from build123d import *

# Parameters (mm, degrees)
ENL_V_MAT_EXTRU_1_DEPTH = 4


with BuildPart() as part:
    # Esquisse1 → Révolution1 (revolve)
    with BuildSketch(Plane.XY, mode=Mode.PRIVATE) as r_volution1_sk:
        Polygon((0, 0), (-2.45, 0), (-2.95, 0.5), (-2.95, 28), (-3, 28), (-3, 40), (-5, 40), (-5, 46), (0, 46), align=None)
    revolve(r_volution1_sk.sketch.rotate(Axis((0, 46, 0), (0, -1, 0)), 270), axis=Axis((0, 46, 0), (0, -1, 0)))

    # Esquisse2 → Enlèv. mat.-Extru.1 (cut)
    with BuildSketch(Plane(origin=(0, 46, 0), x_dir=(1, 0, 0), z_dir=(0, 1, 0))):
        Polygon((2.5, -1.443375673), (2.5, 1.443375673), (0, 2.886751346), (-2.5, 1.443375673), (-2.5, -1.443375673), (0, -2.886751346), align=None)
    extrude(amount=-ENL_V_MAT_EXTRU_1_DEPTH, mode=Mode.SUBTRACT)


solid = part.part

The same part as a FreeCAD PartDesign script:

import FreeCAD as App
import Part
import Sketcher

V = App.Vector
Q = App.Units.Quantity

doc = App.newDocument("Part")
params = doc.addObject("Spreadsheet::Sheet", "Params")
for row, (alias, value) in enumerate([
    ("sketch1_width", "5 mm"),
    ("sketch1_width2", "2 mm"),
    ("sketch1_height", "46 mm"),
    ("sketch1_height2", "6 mm"),
    ("sketch1_height3", "12 mm"),
    ("revolution_angle", "360 deg"),
    ("pocket1_length", "4 mm"),
], start=1):
    params.set(f"A{row}", alias)
    params.set(f"B{row}", "=" + value)
    params.setAlias(f"B{row}", alias)

body = doc.addObject("PartDesign::Body", "Body")

sketch1 = body.newObject("Sketcher::SketchObject", "Sketch")
sketch1.AttachmentSupport = (doc.getObject("XY_Plane"), [""])
sketch1.MapMode = "FlatFace"
sketch1.addGeometry(Part.LineSegment(V(-2.45, 0, 0), V(0, 0, 0)), False)
sketch1.addGeometry(Part.LineSegment(V(0, 0, 0), V(0, 46, 0)), False)
sketch1.addGeometry(Part.LineSegment(V(0, 46, 0), V(-5, 46, 0)), False)
sketch1.addGeometry(Part.LineSegment(V(-5, 46, 0), V(-5, 40, 0)), False)
sketch1.addGeometry(Part.LineSegment(V(-5, 40, 0), V(-3, 40, 0)), False)
sketch1.addGeometry(Part.LineSegment(V(-3, 40, 0), V(-3, 28, 0)), False)
sketch1.addGeometry(Part.LineSegment(V(-3, 28, 0), V(-2.95, 28, 0)), False)
sketch1.addGeometry(Part.LineSegment(V(-2.95, 28, 0), V(-2.95, 0.5, 0)), False)
sketch1.addGeometry(Part.LineSegment(V(-2.95, 0.5, 0), V(-2.45, 0, 0)), False)
sketch1.addConstraint(Sketcher.Constraint("Coincident", 0, 2, 1, 1))
sketch1.addConstraint(Sketcher.Constraint("Coincident", 1, 2, 2, 1))
sketch1.addConstraint(Sketcher.Constraint("Coincident", 2, 2, 3, 1))
sketch1.addConstraint(Sketcher.Constraint("Coincident", 3, 2, 4, 1))
sketch1.addConstraint(Sketcher.Constraint("Coincident", 4, 2, 5, 1))
sketch1.addConstraint(Sketcher.Constraint("Coincident", 5, 2, 6, 1))
sketch1.addConstraint(Sketcher.Constraint("Coincident", 6, 2, 7, 1))
sketch1.addConstraint(Sketcher.Constraint("Coincident", 7, 2, 8, 1))
sketch1.addConstraint(Sketcher.Constraint("Coincident", 8, 2, 0, 1))
sketch1.addConstraint(Sketcher.Constraint("Horizontal", 0))
sketch1.addConstraint(Sketcher.Constraint("Vertical", 1))
sketch1.addConstraint(Sketcher.Constraint("Horizontal", 2))
sketch1.addConstraint(Sketcher.Constraint("Vertical", 3))
sketch1.addConstraint(Sketcher.Constraint("Horizontal", 4))
sketch1.addConstraint(Sketcher.Constraint("Vertical", 5))
sketch1.addConstraint(Sketcher.Constraint("Horizontal", 6))
sketch1.addConstraint(Sketcher.Constraint("Vertical", 7))
sketch1.addConstraint(Sketcher.Constraint("Coincident", 0, 2, -1, 1))
sketch1.addConstraint(Sketcher.Constraint("DistanceX", 2, 2, 2, 1, Q("5 mm")))
sketch1.addConstraint(Sketcher.Constraint("DistanceX", 4, 1, 4, 2, Q("2 mm")))
sketch1.addConstraint(Sketcher.Constraint("DistanceY", 1, 1, 1, 2, Q("46 mm")))
sketch1.addConstraint(Sketcher.Constraint("DistanceY", 3, 2, 3, 1, Q("6 mm")))
sketch1.addConstraint(Sketcher.Constraint("DistanceY", 5, 2, 5, 1, Q("12 mm")))
sketch1.addConstraint(Sketcher.Constraint("Angle", 8, Q("-45 deg")))
sketch1.addConstraint(Sketcher.Constraint("DistanceY", 7, 2, 7, 1, Q("27.5 mm")))
sketch1.addConstraint(Sketcher.Constraint("DistanceX", 0, 1, 0, 2, Q("2.45 mm")))
sketch1.setExpression("Constraints[18]", "Params.sketch1_width")
sketch1.setExpression("Constraints[19]", "Params.sketch1_width2")
sketch1.setExpression("Constraints[20]", "Params.sketch1_height")
sketch1.setExpression("Constraints[21]", "Params.sketch1_height2")
sketch1.setExpression("Constraints[22]", "Params.sketch1_height3")
revolution = body.newObject("PartDesign::Revolution", "Revolution")
revolution.Profile = sketch1
revolution.ReferenceAxis = (sketch1, ["V_Axis"])
revolution.setExpression("Angle", "Params.revolution_angle")

sketch2 = body.newObject("Sketcher::SketchObject", "Sketch001")
sketch2.AttachmentSupport = (doc.getObject("XZ_Plane"), [""])
sketch2.MapMode = "FlatFace"
sketch2.AttachmentOffset = App.Placement(V(0, 0, -46), App.Rotation())
sketch2.addGeometry(Part.LineSegment(V(2.5, 1.4, 0), V(2.5, -1.4, 0)), False)
sketch2.addGeometry(Part.LineSegment(V(2.5, -1.4, 0), V(0, -2.9, 0)), False)
sketch2.addGeometry(Part.LineSegment(V(0, -2.9, 0), V(-2.5, -1.4, 0)), False)
sketch2.addGeometry(Part.LineSegment(V(-2.5, -1.4, 0), V(-2.5, 1.4, 0)), False)
sketch2.addGeometry(Part.LineSegment(V(-2.5, 1.4, 0), V(0, 2.9, 0)), False)
sketch2.addGeometry(Part.LineSegment(V(0, 2.9, 0), V(2.5, 1.4, 0)), False)
sketch2.addConstraint(Sketcher.Constraint("Coincident", 0, 2, 1, 1))
sketch2.addConstraint(Sketcher.Constraint("Coincident", 1, 2, 2, 1))
sketch2.addConstraint(Sketcher.Constraint("Coincident", 2, 2, 3, 1))
sketch2.addConstraint(Sketcher.Constraint("Coincident", 3, 2, 4, 1))
sketch2.addConstraint(Sketcher.Constraint("Coincident", 4, 2, 5, 1))
sketch2.addConstraint(Sketcher.Constraint("Coincident", 5, 2, 0, 1))
sketch2.addConstraint(Sketcher.Constraint("Vertical", 0))
sketch2.addConstraint(Sketcher.Constraint("Vertical", 3))
sketch2.addConstraint(Sketcher.Constraint("Symmetric", 0, 2, 3, 2, -1, 1))
sketch2.addConstraint(Sketcher.Constraint("Symmetric", 1, 2, 4, 2, -1, 1))
sketch2.addConstraint(Sketcher.Constraint("PointOnObject", 1, 2, -2))
sketch2.addConstraint(Sketcher.Constraint("Parallel", 2, 5))
sketch2.addConstraint(Sketcher.Constraint("Horizontal", 0, 2, 2, 2))
sketch2.addConstraint(Sketcher.Constraint("Angle", 1, Q("-150 deg")))
sketch2.addConstraint(Sketcher.Constraint("DistanceX", 2, 2, 0, 2, Q("5 mm")))
sketch2.addConstraint(Sketcher.Constraint("DistanceY", 0, 2, 0, 1, Q("2.886751 mm")))
pocket1 = body.newObject("PartDesign::Pocket", "Pocket")
pocket1.Profile = sketch2
pocket1.setExpression("Length", "Params.pocket1_length")
pocket1.Reversed = True

doc.recompute()
